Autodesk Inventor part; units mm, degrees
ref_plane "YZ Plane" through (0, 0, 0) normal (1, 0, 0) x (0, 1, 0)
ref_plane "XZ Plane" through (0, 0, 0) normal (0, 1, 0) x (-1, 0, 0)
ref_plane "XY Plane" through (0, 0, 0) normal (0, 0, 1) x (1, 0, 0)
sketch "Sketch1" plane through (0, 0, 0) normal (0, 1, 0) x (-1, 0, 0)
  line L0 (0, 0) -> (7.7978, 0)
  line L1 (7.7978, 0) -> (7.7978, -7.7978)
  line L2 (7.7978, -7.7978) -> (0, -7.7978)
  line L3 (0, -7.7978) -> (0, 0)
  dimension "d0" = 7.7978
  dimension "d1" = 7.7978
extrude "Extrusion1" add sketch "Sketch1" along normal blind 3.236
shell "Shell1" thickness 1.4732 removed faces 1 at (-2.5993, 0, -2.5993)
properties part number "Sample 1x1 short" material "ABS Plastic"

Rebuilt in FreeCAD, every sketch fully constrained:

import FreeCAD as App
import Part
import Sketcher

V = App.Vector
Q = App.Units.Quantity


def faces_at(feature, points):
    """Names of the faces that lie closest to the given points."""
    faces = feature.Shape.Faces
    near = lambda p: min(range(len(faces)), key=lambda i: faces[i].distToShape(Part.Vertex(*p))[0])
    return sorted({f"Face{near(p) + 1}" for p in points})


def add_polygon(sketch, points):
    """Adds a closed chain of lines whose ends are joined by coincident constraints."""
    first, n = sketch.GeometryCount, len(points)
    for a, b in zip(points, points[1:] + points[:1]):
        sketch.addGeometry(Part.LineSegment(App.Vector(*a, 0), App.Vector(*b, 0)), False)
    for i in range(n):
        sketch.addConstraint(Sketcher.Constraint("Coincident", first + i, 2, first + (i + 1) % n, 1))

doc = App.newDocument("Part")
body = doc.addObject("PartDesign::Body", "Body")

sketch1 = body.newObject("Sketcher::SketchObject", "Sketch")
sketch1.AttachmentSupport = (doc.getObject("XZ_Plane"), [""])
sketch1.MapMode = "FlatFace"
add_polygon(sketch1, [(-7.7978, 0), (0, 0), (0, -7.7978), (-7.7978, -7.7978)])
sketch1.addConstraint(Sketcher.Constraint("Horizontal", 0))
sketch1.addConstraint(Sketcher.Constraint("Vertical", 1))
sketch1.addConstraint(Sketcher.Constraint("Horizontal", 2))
sketch1.addConstraint(Sketcher.Constraint("Vertical", 3))
sketch1.addConstraint(Sketcher.Constraint("Coincident", 0, 2, -1, 1))
sketch1.addConstraint(Sketcher.Constraint("Equal", 2, 1))
sketch1.addConstraint(Sketcher.Constraint("DistanceX", 0, 1, 0, 2, Q("0.307 in")))
pad1 = body.newObject("PartDesign::Pad", "Pad")
pad1.Profile = sketch1
pad1.Length = Q("0.1274016 in")
pad1.Reversed = True
doc.recompute()

thickness = body.newObject("PartDesign::Thickness", "Thickness")
thickness.Base = (pad1, faces_at(pad1, [(-2.599, 0, -2.599)]))
thickness.Value = Q("0.058 in")
thickness.Reversed = True
thickness.Join = "Intersection"

doc.recompute()
